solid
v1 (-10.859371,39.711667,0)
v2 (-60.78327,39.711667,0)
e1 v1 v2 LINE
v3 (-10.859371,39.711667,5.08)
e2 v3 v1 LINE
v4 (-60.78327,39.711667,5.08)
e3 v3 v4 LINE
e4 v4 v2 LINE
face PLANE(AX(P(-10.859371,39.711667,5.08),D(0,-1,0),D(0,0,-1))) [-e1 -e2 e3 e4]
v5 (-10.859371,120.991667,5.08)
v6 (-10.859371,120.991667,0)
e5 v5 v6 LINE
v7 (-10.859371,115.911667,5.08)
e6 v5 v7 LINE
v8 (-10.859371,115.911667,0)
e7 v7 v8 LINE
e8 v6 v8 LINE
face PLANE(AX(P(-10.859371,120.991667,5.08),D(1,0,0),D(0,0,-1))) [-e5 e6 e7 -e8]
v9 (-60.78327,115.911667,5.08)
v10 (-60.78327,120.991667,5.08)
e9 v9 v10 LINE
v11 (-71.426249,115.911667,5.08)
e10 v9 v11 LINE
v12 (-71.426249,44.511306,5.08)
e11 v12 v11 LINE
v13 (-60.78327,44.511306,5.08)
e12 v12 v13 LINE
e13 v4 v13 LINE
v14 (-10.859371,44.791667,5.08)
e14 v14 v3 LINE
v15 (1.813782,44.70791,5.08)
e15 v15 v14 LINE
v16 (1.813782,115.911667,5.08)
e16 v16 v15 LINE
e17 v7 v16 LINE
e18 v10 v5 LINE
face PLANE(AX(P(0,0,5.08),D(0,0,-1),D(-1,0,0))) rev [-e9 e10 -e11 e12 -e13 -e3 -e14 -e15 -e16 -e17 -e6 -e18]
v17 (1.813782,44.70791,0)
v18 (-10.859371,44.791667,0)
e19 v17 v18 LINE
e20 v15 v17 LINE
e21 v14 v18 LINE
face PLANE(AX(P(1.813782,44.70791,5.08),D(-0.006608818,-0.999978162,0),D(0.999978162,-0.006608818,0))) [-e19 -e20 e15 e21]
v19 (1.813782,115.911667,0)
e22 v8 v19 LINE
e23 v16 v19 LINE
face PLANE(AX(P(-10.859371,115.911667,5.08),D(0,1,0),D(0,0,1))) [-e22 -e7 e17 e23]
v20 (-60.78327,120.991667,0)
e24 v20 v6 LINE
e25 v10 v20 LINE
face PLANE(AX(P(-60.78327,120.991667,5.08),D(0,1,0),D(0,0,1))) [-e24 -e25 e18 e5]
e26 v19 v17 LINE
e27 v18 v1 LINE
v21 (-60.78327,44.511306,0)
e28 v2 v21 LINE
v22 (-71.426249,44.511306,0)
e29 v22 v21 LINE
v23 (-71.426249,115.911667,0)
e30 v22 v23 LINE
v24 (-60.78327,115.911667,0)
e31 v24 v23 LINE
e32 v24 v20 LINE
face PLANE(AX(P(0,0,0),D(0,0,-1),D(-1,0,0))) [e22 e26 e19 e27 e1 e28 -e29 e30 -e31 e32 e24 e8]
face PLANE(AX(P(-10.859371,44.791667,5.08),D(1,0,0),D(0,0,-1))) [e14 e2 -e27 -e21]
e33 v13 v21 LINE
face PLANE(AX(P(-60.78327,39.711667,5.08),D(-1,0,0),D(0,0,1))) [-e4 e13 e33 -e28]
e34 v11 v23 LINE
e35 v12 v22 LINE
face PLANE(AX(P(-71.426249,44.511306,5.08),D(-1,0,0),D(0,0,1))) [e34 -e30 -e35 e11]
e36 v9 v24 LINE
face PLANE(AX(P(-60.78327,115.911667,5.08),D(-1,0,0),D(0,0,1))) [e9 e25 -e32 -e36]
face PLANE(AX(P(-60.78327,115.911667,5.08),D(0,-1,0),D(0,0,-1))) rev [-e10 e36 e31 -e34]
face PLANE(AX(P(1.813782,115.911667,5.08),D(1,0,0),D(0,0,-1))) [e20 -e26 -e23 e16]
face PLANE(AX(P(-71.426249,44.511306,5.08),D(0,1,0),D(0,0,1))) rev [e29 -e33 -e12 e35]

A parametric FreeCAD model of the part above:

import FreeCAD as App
import Part
import Sketcher

V = App.Vector
Q = App.Units.Quantity


def add_polygon(sketch, points):
    """Adds a closed chain of lines whose ends are joined by coincident constraints."""
    first, n = sketch.GeometryCount, len(points)
    for a, b in zip(points, points[1:] + points[:1]):
        sketch.addGeometry(Part.LineSegment(App.Vector(*a, 0), App.Vector(*b, 0)), False)
    for i in range(n):
        sketch.addConstraint(Sketcher.Constraint("Coincident", first + i, 2, first + (i + 1) % n, 1))

doc = App.newDocument("Part")
body = doc.addObject("PartDesign::Body", "Body")

# Sketch on XY plane
sketch1 = body.newObject("Sketcher::SketchObject", "Sketch")
sketch1.AttachmentSupport = (doc.getObject("XY_Plane"), [""])
sketch1.MapMode = "FlatFace"
add_polygon(sketch1, [(-60.78327, 44.511306), (-60.78327, 39.711667), (-10.859371, 39.711667), (-10.859371, 44.791667), (1.813782, 44.70791), (1.813782, 115.911667), (-10.859371, 115.911667), (-10.859371, 120.991667), (-60.78327, 120.991667), (-60.78327, 115.911667), (-71.426249, 115.911667), (-71.426249, 44.511306)])  # lines 0-11
sketch1.addConstraint(Sketcher.Constraint("Vertical", 0))
sketch1.addConstraint(Sketcher.Constraint("Horizontal", 1))
sketch1.addConstraint(Sketcher.Constraint("Vertical", 2))
sketch1.addConstraint(Sketcher.Constraint("Vertical", 4))
sketch1.addConstraint(Sketcher.Constraint("Horizontal", 5))
sketch1.addConstraint(Sketcher.Constraint("Vertical", 6))
sketch1.addConstraint(Sketcher.Constraint("Horizontal", 7))
sketch1.addConstraint(Sketcher.Constraint("Vertical", 8))
sketch1.addConstraint(Sketcher.Constraint("Horizontal", 9))
sketch1.addConstraint(Sketcher.Constraint("Vertical", 10))
sketch1.addConstraint(Sketcher.Constraint("Horizontal", 11))
sketch1.addConstraint(Sketcher.Constraint("DistanceY", 2, 1, 2, 2, Q("0.2 in")))
sketch1.addConstraint(Sketcher.Constraint("DistanceY", 6, 1, 6, 2, Q("0.2 in")))
sketch1.addConstraint(Sketcher.Constraint("DistanceY", 8, 2, 8, 1, Q("0.2 in")))
sketch1.addConstraint(Sketcher.Constraint("DistanceY", 1, 2, 4, 2, Q("3 in")))
sketch1.addConstraint(Sketcher.Constraint("DistanceX", 1, 1, 1, 2, 49.923899))
sketch1.addConstraint(Sketcher.Constraint("DistanceX", 7, 2, 7, 1, 49.923899))
sketch1.addConstraint(Sketcher.Constraint("DistanceX", 9, 2, 9, 1, 10.64298))
sketch1.addConstraint(Sketcher.Constraint("DistanceX", 11, 1, 11, 2, 10.64298))
sketch1.addConstraint(Sketcher.Constraint("DistanceY", 0, 2, 0, 1, 4.799639))
sketch1.addConstraint(Sketcher.Constraint("Distance", 3, 12.67343))
sketch1.addConstraint(Sketcher.Constraint("DistanceX", 5, 2, 5, 1, 12.673153))
sketch1.addConstraint(Sketcher.Constraint("DistanceX", 0, 2, -1, 1, 60.78327))
sketch1.addConstraint(Sketcher.Constraint("DistanceY", -1, 1, 3, 2, 44.70791))
pad1 = body.newObject("PartDesign::Pad", "Pad")
pad1.Profile = sketch1
pad1.Length = Q("0.2 in")

doc.recompute()
